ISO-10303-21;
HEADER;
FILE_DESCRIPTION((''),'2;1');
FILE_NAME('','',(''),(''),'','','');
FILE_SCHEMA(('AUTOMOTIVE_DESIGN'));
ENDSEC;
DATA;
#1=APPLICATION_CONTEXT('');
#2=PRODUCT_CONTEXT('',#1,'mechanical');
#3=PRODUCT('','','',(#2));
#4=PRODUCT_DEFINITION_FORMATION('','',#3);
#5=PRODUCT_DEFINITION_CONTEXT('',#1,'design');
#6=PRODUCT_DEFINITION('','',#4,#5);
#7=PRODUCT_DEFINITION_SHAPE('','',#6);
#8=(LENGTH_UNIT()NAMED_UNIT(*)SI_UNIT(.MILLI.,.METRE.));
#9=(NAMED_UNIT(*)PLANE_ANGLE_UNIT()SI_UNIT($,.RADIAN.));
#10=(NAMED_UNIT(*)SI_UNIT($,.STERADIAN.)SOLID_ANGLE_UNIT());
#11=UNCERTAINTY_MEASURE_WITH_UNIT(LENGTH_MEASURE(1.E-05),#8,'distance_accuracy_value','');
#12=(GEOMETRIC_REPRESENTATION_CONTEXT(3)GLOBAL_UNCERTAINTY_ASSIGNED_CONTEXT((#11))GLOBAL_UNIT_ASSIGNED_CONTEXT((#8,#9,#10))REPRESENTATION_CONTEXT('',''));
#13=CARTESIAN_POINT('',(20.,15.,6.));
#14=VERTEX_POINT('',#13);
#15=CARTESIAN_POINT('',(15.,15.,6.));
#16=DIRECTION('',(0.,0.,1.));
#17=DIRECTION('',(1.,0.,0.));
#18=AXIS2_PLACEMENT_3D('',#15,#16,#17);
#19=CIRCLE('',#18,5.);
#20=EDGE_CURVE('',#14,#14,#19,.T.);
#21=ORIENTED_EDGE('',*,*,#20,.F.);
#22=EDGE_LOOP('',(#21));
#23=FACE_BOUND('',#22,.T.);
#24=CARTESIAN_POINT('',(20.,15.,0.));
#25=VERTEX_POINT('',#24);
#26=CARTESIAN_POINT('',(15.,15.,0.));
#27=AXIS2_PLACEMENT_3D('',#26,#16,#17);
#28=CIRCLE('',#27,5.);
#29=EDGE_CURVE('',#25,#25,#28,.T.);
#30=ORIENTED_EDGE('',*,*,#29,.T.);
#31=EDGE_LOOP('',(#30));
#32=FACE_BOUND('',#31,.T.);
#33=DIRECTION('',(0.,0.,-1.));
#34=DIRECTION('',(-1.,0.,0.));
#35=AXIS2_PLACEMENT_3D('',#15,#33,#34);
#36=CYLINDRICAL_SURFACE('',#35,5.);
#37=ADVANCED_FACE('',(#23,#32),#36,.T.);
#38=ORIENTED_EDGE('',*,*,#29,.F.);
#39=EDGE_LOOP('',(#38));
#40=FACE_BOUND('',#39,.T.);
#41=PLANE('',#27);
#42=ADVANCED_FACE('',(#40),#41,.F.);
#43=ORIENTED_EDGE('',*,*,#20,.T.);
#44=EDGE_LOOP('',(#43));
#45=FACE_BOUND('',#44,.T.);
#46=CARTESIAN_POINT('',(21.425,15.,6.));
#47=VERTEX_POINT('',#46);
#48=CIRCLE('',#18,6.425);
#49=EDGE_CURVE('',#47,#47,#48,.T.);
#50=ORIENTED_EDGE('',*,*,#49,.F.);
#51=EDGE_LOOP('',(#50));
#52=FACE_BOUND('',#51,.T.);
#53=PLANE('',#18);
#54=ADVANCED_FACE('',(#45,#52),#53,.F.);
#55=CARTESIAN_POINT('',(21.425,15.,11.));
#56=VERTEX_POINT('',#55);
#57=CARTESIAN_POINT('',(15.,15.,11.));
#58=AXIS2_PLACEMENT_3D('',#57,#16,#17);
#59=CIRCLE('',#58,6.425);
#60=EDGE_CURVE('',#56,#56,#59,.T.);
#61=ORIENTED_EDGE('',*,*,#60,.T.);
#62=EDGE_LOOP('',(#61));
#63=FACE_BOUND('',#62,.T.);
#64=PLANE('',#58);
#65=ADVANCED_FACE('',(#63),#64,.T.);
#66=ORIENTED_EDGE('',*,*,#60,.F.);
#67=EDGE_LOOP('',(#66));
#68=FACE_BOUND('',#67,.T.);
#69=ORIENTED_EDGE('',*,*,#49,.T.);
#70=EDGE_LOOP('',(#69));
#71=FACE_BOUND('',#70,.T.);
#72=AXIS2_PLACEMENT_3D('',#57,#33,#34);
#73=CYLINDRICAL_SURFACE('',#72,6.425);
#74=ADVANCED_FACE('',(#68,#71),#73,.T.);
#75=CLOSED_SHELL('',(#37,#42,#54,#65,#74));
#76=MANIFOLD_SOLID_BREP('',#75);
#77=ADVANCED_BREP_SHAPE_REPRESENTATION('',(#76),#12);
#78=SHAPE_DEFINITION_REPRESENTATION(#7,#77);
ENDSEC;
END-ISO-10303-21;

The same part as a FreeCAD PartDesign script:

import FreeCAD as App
import Part
import Sketcher
from FreeCAD import Vector
Q = App.Units.Quantity

doc = App.newDocument("Part")
body = doc.addObject("PartDesign::Body", "Body")

# Sketch on XY plane
sketch1 = body.newObject("Sketcher::SketchObject", "Sketch")
sketch1.AttachmentSupport = (doc.getObject("XY_Plane"), [""])
sketch1.MapMode = "FlatFace"
sketch1.addGeometry(Part.Circle(Vector(15, 15, 0), Vector(0, 0, 1), 5), False)
sketch1.addConstraint(Sketcher.Constraint("Diameter", 0, Q("10 mm")))
sketch1.addConstraint(Sketcher.Constraint("DistanceX", -1, 1, 0, 3, Q("15 mm")))
sketch1.addConstraint(Sketcher.Constraint("DistanceY", -1, 1, 0, 3, Q("15 mm")))
pad1 = body.newObject("PartDesign::Pad", "Pad")
pad1.Profile = sketch1
pad1.Length = 6

# Sketch on XY plane
sketch2 = body.newObject("Sketcher::SketchObject", "Sketch001")
sketch2.AttachmentSupport = (doc.getObject("XY_Plane"), [""])
sketch2.MapMode = "FlatFace"
sketch2.AttachmentOffset = App.Placement(Vector(0, 0, 6), App.Rotation())
sketch2.addGeometry(Part.Circle(Vector(15, 15, 0), Vector(0, 0, 1), 6), False)
sketch2.addConstraint(Sketcher.Constraint("Diameter", 0, Q("12.85 mm")))
sketch2.addConstraint(Sketcher.Constraint("DistanceX", -1, 1, 0, 3, Q("15 mm")))
sketch2.addConstraint(Sketcher.Constraint("DistanceY", -1, 1, 0, 3, Q("15 mm")))
pad2 = body.newObject("PartDesign::Pad", "Pad001")
pad2.Profile = sketch2
pad2.Length = 5

doc.recompute()
